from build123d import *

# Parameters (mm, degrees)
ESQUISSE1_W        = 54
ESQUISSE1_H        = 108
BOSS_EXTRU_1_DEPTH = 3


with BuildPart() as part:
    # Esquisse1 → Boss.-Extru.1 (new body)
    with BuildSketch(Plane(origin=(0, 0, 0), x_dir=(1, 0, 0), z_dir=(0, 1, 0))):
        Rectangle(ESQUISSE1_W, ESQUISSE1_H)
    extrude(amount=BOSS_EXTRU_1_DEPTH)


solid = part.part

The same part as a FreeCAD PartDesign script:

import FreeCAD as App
import Part
import Sketcher

V = App.Vector

doc = App.newDocument("Part")
params = doc.addObject("Spreadsheet::Sheet", "Params")
for row, (alias, value) in enumerate([
    ("sketch1_width", "54 mm"),
    ("sketch1_height", "108 mm"),
    ("pad1_length", "3 mm"),
], start=1):
    params.set(f"A{row}", alias)
    params.set(f"B{row}", "=" + value)
    params.setAlias(f"B{row}", alias)

body = doc.addObject("PartDesign::Body", "Body")

# Sketch on XZ plane
sketch1 = doc.addObject("Sketcher::SketchObject", "Sketch")
body.addObject(sketch1)
sketch1.AttachmentSupport = (doc.XZ_Plane, [""])
sketch1.MapMode = "FlatFace"
sketch1.addGeometry(Part.LineSegment(V(-27, -54, 0), V(-27, 54, 0)), False)
sketch1.addGeometry(Part.LineSegment(V(-27, 54, 0), V(27, 54, 0)), False)
sketch1.addGeometry(Part.LineSegment(V(27, 54, 0), V(27, -54, 0)), False)
sketch1.addGeometry(Part.LineSegment(V(27, -54, 0), V(-27, -54, 0)), False)
sketch1.addConstraint(Sketcher.Constraint("Coincident", 0, 2, 1, 1))
sketch1.addConstraint(Sketcher.Constraint("Coincident", 1, 2, 2, 1))
sketch1.addConstraint(Sketcher.Constraint("Coincident", 2, 2, 3, 1))
sketch1.addConstraint(Sketcher.Constraint("Coincident", 3, 2, 0, 1))
sketch1.addConstraint(Sketcher.Constraint("Vertical", 0))
sketch1.addConstraint(Sketcher.Constraint("Horizontal", 1))
sketch1.addConstraint(Sketcher.Constraint("Vertical", 2))
sketch1.addConstraint(Sketcher.Constraint("Horizontal", 3))
sketch1.addConstraint(Sketcher.Constraint("Symmetric", 0, 2, 2, 2, -1, 1))
sketch1.addConstraint(Sketcher.Constraint("DistanceX", 1, 1, 1, 2, 54.0))
sketch1.addConstraint(Sketcher.Constraint("DistanceY", 0, 1, 0, 2, 108.0))
sketch1.setExpression("Constraints[9]", "Params.sketch1_width")
sketch1.setExpression("Constraints[10]", "Params.sketch1_height")
pad1 = doc.addObject("PartDesign::Pad", "Pad")
body.addObject(pad1)
pad1.Profile = sketch1
pad1.setExpression("Length", "Params.pad1_length")
pad1.Reversed = True

doc.recompute()
